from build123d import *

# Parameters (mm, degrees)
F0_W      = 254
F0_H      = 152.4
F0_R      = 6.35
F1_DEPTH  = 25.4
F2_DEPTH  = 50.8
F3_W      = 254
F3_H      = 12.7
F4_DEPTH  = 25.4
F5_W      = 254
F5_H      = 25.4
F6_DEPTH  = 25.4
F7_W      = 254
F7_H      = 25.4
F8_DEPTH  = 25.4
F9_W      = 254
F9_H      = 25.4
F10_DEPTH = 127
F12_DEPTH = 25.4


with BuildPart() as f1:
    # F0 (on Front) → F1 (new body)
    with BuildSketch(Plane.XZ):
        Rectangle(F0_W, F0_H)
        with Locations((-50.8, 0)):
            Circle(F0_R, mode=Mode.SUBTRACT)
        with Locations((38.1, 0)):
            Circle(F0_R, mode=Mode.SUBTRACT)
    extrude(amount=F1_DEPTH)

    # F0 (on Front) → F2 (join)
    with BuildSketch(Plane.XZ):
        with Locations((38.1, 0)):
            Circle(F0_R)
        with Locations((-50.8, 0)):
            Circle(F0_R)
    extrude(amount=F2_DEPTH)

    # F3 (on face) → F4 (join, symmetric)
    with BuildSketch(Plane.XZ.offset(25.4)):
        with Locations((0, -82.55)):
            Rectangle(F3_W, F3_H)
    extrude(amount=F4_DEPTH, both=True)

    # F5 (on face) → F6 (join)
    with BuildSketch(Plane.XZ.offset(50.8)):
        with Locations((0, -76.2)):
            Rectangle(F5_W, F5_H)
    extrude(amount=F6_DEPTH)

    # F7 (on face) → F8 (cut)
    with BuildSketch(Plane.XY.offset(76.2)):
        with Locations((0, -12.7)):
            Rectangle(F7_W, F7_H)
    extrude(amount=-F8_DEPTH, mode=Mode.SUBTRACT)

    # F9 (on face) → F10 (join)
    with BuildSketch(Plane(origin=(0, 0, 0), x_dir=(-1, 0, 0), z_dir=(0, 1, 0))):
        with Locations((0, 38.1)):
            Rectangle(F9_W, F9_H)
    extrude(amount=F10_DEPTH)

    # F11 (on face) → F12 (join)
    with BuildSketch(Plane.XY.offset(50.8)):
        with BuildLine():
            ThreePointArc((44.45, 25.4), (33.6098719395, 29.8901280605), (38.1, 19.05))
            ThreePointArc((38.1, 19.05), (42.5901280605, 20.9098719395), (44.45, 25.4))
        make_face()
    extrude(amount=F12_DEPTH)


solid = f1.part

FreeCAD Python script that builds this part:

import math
import FreeCAD as App
import Part
import Sketcher
Q = App.Units.Quantity


def add_polygon(sketch, points):
    """Adds a closed chain of lines whose ends are joined by coincident constraints."""
    first, n = sketch.GeometryCount, len(points)
    for a, b in zip(points, points[1:] + points[:1]):
        sketch.addGeometry(Part.LineSegment(App.Vector(*a, 0), App.Vector(*b, 0)), False)
    for i in range(n):
        sketch.addConstraint(Sketcher.Constraint("Coincident", first + i, 2, first + (i + 1) % n, 1))

doc = App.newDocument("Part")
body = doc.addObject("PartDesign::Body", "Body")

sketch1 = body.newObject("Sketcher::SketchObject", "Sketch")
sketch1.AttachmentSupport = (doc.getObject("XZ_Plane"), [""])
sketch1.MapMode = "FlatFace"
add_polygon(sketch1, [(-127, 76), (-127, -76), (127, -76), (127, 76)])
sketch1.addGeometry(Part.Circle(App.Vector(-51, 0, 0), App.Vector(0, 0, 1), 6), False)
sketch1.addGeometry(Part.Circle(App.Vector(38, 0, 0), App.Vector(0, 0, 1), 6), False)
sketch1.addConstraint([
    Sketcher.Constraint("Vertical", 0),
    Sketcher.Constraint("Horizontal", 1),
    Sketcher.Constraint("Vertical", 2),
    Sketcher.Constraint("Horizontal", 3),
    Sketcher.Constraint("Equal", 4, 5),
    Sketcher.Constraint("Symmetric", 0, 2, 2, 2, -1, 1),
    Sketcher.Constraint("PointOnObject", 4, 3, -1),
    Sketcher.Constraint("PointOnObject", 5, 3, -1),
    Sketcher.Constraint("Diameter", 4, Q("0.5 in")),
    Sketcher.Constraint("DistanceX", 1, 1, 1, 2, Q("10 in")),
    Sketcher.Constraint("DistanceY", 0, 2, 0, 1, Q("6 in")),
    Sketcher.Constraint("DistanceX", 4, 3, -1, 1, Q("2 in")),
    Sketcher.Constraint("DistanceX", -1, 1, 5, 3, Q("1.5 in")),
])
pad1 = body.newObject("PartDesign::Pad", "Pad")
pad1.Profile = sketch1
pad1.Length = Q("1 in")

sketch2 = body.newObject("Sketcher::SketchObject", "Sketch001")
sketch2.AttachmentSupport = (doc.getObject("XZ_Plane"), [""])
sketch2.MapMode = "FlatFace"
sketch2.addGeometry([
    Part.Circle(App.Vector(38, 0, 0), App.Vector(0, 0, 1), 6),
    Part.Circle(App.Vector(-51, 0, 0), App.Vector(0, 0, 1), 6),
], False)
sketch2.addConstraint([
    Sketcher.Constraint("Equal", 0, 1),
    Sketcher.Constraint("PointOnObject", 0, 3, -1),
    Sketcher.Constraint("PointOnObject", 1, 3, -1),
    Sketcher.Constraint("Diameter", 0, Q("0.5 in")),
    Sketcher.Constraint("DistanceX", 1, 3, -1, 1, Q("2 in")),
    Sketcher.Constraint("DistanceX", -1, 1, 0, 3, Q("1.5 in")),
])
pad2 = body.newObject("PartDesign::Pad", "Pad001")
pad2.Profile = sketch2
pad2.Length = Q("2 in")

sketch3 = body.newObject("Sketcher::SketchObject", "Sketch002")
sketch3.AttachmentSupport = (doc.getObject("XZ_Plane"), [""])
sketch3.MapMode = "FlatFace"
sketch3.AttachmentOffset = App.Placement(App.Vector(0, 0, 1 * 25.4), App.Rotation())
add_polygon(sketch3, [(-127, -76), (-127, -89), (127, -89), (127, -76)])
sketch3.addConstraint([
    Sketcher.Constraint("Vertical", 0),
    Sketcher.Constraint("Horizontal", 1),
    Sketcher.Constraint("Vertical", 2),
    Sketcher.Constraint("Horizontal", 3),
    Sketcher.Constraint("DistanceX", 1, 1, 1, 2, Q("10 in")),
    Sketcher.Constraint("DistanceY", 0, 2, 0, 1, Q("0.5 in")),
    Sketcher.Constraint("DistanceX", 0, 2, -1, 1, Q("5 in")),
    Sketcher.Constraint("DistanceY", 2, 2, -1, 1, Q("3 in")),
])
pad3 = body.newObject("PartDesign::Pad", "Pad002")
pad3.Profile = sketch3
pad3.Length = Q("2 in")
pad3.Midplane = True

sketch4 = body.newObject("Sketcher::SketchObject", "Sketch003")
sketch4.AttachmentSupport = (doc.getObject("XZ_Plane"), [""])
sketch4.MapMode = "FlatFace"
sketch4.AttachmentOffset = App.Placement(App.Vector(0, 0, 2 * 25.4), App.Rotation())
add_polygon(sketch4, [(-127, -64), (-127, -89), (127, -89), (127, -64)])
sketch4.addConstraint([
    Sketcher.Constraint("Vertical", 0),
    Sketcher.Constraint("Horizontal", 1),
    Sketcher.Constraint("Vertical", 2),
    Sketcher.Constraint("Horizontal", 3),
    Sketcher.Constraint("DistanceX", 1, 1, 1, 2, Q("10 in")),
    Sketcher.Constraint("DistanceY", 0, 2, 0, 1, Q("1 in")),
    Sketcher.Constraint("DistanceX", 0, 2, -1, 1, Q("5 in")),
    Sketcher.Constraint("DistanceY", 0, 2, -1, 1, Q("3.5 in")),
])
pad4 = body.newObject("PartDesign::Pad", "Pad003")
pad4.Profile = sketch4
pad4.Length = Q("1 in")

sketch5 = body.newObject("Sketcher::SketchObject", "Sketch004")
sketch5.AttachmentSupport = (doc.getObject("XY_Plane"), [""])
sketch5.MapMode = "FlatFace"
sketch5.AttachmentOffset = App.Placement(App.Vector(0, 0, 3 * 25.4), App.Rotation())
add_polygon(sketch5, [(-127, 0), (-127, -25), (127, -25), (127, 0)])
sketch5.addConstraint([
    Sketcher.Constraint("Vertical", 0),
    Sketcher.Constraint("Horizontal", 1),
    Sketcher.Constraint("Vertical", 2),
    Sketcher.Constraint("Horizontal", 3),
    Sketcher.Constraint("Symmetric", 2, 2, 3, 2, -1, 1),
    Sketcher.Constraint("DistanceX", 1, 1, 1, 2, Q("10 in")),
    Sketcher.Constraint("DistanceY", 0, 2, 0, 1, Q("1 in")),
])
pocket1 = body.newObject("PartDesign::Pocket", "Pocket")
pocket1.Profile = sketch5
pocket1.Length = Q("1 in")

sketch6 = body.newObject("Sketcher::SketchObject", "Sketch005")
sketch6.AttachmentSupport = (doc.getObject("XZ_Plane"), [""])
sketch6.MapMode = "FlatFace"
add_polygon(sketch6, [(127, 51), (127, 25), (-127, 25), (-127, 51)])
sketch6.addConstraint([
    Sketcher.Constraint("Vertical", 0),
    Sketcher.Constraint("Horizontal", 1),
    Sketcher.Constraint("Vertical", 2),
    Sketcher.Constraint("Horizontal", 3),
    Sketcher.Constraint("DistanceX", 1, 2, 1, 1, Q("10 in")),
    Sketcher.Constraint("DistanceY", 0, 2, 0, 1, Q("1 in")),
    Sketcher.Constraint("DistanceX", -1, 1, 0, 2, Q("5 in")),
    Sketcher.Constraint("DistanceY", -1, 1, 0, 2, Q("1 in")),
])
pad5 = body.newObject("PartDesign::Pad", "Pad004")
pad5.Profile = sketch6
pad5.Length = Q("5 in")
pad5.Reversed = True

sketch7 = body.newObject("Sketcher::SketchObject", "Sketch006")
sketch7.AttachmentSupport = (doc.getObject("XY_Plane"), [""])
sketch7.MapMode = "FlatFace"
sketch7.AttachmentOffset = App.Placement(App.Vector(0, 0, 2 * 25.4), App.Rotation())
sketch7.addGeometry([
    Part.ArcOfCircle(Part.Circle(App.Vector(38, 25, 0), App.Vector(0, 0, 1), 6), math.radians(0), math.radians(270)),
    Part.ArcOfCircle(Part.Circle(App.Vector(38, 25, 0), App.Vector(0, 0, 1), 6), math.radians(-90), math.radians(0)),
], False)
sketch7.addConstraint([
    Sketcher.Constraint("Tangent", 0, 1, 1, 2),
    Sketcher.Constraint("Coincident", 1, 1, 0, 2),
    Sketcher.Constraint("Horizontal", 1, 3, 0, 1),
    Sketcher.Constraint("Vertical", 0, 3, 1, 1),
    Sketcher.Constraint("Radius", 0, Q("0.25 in")),
    Sketcher.Constraint("DistanceY", -1, 1, 0, 3, Q("1 in")),
    Sketcher.Constraint("DistanceX", -1, 1, 0, 3, Q("1.5 in")),
])
pad6 = body.newObject("PartDesign::Pad", "Pad005")
pad6.Profile = sketch7
pad6.Length = Q("1 in")

doc.recompute()
